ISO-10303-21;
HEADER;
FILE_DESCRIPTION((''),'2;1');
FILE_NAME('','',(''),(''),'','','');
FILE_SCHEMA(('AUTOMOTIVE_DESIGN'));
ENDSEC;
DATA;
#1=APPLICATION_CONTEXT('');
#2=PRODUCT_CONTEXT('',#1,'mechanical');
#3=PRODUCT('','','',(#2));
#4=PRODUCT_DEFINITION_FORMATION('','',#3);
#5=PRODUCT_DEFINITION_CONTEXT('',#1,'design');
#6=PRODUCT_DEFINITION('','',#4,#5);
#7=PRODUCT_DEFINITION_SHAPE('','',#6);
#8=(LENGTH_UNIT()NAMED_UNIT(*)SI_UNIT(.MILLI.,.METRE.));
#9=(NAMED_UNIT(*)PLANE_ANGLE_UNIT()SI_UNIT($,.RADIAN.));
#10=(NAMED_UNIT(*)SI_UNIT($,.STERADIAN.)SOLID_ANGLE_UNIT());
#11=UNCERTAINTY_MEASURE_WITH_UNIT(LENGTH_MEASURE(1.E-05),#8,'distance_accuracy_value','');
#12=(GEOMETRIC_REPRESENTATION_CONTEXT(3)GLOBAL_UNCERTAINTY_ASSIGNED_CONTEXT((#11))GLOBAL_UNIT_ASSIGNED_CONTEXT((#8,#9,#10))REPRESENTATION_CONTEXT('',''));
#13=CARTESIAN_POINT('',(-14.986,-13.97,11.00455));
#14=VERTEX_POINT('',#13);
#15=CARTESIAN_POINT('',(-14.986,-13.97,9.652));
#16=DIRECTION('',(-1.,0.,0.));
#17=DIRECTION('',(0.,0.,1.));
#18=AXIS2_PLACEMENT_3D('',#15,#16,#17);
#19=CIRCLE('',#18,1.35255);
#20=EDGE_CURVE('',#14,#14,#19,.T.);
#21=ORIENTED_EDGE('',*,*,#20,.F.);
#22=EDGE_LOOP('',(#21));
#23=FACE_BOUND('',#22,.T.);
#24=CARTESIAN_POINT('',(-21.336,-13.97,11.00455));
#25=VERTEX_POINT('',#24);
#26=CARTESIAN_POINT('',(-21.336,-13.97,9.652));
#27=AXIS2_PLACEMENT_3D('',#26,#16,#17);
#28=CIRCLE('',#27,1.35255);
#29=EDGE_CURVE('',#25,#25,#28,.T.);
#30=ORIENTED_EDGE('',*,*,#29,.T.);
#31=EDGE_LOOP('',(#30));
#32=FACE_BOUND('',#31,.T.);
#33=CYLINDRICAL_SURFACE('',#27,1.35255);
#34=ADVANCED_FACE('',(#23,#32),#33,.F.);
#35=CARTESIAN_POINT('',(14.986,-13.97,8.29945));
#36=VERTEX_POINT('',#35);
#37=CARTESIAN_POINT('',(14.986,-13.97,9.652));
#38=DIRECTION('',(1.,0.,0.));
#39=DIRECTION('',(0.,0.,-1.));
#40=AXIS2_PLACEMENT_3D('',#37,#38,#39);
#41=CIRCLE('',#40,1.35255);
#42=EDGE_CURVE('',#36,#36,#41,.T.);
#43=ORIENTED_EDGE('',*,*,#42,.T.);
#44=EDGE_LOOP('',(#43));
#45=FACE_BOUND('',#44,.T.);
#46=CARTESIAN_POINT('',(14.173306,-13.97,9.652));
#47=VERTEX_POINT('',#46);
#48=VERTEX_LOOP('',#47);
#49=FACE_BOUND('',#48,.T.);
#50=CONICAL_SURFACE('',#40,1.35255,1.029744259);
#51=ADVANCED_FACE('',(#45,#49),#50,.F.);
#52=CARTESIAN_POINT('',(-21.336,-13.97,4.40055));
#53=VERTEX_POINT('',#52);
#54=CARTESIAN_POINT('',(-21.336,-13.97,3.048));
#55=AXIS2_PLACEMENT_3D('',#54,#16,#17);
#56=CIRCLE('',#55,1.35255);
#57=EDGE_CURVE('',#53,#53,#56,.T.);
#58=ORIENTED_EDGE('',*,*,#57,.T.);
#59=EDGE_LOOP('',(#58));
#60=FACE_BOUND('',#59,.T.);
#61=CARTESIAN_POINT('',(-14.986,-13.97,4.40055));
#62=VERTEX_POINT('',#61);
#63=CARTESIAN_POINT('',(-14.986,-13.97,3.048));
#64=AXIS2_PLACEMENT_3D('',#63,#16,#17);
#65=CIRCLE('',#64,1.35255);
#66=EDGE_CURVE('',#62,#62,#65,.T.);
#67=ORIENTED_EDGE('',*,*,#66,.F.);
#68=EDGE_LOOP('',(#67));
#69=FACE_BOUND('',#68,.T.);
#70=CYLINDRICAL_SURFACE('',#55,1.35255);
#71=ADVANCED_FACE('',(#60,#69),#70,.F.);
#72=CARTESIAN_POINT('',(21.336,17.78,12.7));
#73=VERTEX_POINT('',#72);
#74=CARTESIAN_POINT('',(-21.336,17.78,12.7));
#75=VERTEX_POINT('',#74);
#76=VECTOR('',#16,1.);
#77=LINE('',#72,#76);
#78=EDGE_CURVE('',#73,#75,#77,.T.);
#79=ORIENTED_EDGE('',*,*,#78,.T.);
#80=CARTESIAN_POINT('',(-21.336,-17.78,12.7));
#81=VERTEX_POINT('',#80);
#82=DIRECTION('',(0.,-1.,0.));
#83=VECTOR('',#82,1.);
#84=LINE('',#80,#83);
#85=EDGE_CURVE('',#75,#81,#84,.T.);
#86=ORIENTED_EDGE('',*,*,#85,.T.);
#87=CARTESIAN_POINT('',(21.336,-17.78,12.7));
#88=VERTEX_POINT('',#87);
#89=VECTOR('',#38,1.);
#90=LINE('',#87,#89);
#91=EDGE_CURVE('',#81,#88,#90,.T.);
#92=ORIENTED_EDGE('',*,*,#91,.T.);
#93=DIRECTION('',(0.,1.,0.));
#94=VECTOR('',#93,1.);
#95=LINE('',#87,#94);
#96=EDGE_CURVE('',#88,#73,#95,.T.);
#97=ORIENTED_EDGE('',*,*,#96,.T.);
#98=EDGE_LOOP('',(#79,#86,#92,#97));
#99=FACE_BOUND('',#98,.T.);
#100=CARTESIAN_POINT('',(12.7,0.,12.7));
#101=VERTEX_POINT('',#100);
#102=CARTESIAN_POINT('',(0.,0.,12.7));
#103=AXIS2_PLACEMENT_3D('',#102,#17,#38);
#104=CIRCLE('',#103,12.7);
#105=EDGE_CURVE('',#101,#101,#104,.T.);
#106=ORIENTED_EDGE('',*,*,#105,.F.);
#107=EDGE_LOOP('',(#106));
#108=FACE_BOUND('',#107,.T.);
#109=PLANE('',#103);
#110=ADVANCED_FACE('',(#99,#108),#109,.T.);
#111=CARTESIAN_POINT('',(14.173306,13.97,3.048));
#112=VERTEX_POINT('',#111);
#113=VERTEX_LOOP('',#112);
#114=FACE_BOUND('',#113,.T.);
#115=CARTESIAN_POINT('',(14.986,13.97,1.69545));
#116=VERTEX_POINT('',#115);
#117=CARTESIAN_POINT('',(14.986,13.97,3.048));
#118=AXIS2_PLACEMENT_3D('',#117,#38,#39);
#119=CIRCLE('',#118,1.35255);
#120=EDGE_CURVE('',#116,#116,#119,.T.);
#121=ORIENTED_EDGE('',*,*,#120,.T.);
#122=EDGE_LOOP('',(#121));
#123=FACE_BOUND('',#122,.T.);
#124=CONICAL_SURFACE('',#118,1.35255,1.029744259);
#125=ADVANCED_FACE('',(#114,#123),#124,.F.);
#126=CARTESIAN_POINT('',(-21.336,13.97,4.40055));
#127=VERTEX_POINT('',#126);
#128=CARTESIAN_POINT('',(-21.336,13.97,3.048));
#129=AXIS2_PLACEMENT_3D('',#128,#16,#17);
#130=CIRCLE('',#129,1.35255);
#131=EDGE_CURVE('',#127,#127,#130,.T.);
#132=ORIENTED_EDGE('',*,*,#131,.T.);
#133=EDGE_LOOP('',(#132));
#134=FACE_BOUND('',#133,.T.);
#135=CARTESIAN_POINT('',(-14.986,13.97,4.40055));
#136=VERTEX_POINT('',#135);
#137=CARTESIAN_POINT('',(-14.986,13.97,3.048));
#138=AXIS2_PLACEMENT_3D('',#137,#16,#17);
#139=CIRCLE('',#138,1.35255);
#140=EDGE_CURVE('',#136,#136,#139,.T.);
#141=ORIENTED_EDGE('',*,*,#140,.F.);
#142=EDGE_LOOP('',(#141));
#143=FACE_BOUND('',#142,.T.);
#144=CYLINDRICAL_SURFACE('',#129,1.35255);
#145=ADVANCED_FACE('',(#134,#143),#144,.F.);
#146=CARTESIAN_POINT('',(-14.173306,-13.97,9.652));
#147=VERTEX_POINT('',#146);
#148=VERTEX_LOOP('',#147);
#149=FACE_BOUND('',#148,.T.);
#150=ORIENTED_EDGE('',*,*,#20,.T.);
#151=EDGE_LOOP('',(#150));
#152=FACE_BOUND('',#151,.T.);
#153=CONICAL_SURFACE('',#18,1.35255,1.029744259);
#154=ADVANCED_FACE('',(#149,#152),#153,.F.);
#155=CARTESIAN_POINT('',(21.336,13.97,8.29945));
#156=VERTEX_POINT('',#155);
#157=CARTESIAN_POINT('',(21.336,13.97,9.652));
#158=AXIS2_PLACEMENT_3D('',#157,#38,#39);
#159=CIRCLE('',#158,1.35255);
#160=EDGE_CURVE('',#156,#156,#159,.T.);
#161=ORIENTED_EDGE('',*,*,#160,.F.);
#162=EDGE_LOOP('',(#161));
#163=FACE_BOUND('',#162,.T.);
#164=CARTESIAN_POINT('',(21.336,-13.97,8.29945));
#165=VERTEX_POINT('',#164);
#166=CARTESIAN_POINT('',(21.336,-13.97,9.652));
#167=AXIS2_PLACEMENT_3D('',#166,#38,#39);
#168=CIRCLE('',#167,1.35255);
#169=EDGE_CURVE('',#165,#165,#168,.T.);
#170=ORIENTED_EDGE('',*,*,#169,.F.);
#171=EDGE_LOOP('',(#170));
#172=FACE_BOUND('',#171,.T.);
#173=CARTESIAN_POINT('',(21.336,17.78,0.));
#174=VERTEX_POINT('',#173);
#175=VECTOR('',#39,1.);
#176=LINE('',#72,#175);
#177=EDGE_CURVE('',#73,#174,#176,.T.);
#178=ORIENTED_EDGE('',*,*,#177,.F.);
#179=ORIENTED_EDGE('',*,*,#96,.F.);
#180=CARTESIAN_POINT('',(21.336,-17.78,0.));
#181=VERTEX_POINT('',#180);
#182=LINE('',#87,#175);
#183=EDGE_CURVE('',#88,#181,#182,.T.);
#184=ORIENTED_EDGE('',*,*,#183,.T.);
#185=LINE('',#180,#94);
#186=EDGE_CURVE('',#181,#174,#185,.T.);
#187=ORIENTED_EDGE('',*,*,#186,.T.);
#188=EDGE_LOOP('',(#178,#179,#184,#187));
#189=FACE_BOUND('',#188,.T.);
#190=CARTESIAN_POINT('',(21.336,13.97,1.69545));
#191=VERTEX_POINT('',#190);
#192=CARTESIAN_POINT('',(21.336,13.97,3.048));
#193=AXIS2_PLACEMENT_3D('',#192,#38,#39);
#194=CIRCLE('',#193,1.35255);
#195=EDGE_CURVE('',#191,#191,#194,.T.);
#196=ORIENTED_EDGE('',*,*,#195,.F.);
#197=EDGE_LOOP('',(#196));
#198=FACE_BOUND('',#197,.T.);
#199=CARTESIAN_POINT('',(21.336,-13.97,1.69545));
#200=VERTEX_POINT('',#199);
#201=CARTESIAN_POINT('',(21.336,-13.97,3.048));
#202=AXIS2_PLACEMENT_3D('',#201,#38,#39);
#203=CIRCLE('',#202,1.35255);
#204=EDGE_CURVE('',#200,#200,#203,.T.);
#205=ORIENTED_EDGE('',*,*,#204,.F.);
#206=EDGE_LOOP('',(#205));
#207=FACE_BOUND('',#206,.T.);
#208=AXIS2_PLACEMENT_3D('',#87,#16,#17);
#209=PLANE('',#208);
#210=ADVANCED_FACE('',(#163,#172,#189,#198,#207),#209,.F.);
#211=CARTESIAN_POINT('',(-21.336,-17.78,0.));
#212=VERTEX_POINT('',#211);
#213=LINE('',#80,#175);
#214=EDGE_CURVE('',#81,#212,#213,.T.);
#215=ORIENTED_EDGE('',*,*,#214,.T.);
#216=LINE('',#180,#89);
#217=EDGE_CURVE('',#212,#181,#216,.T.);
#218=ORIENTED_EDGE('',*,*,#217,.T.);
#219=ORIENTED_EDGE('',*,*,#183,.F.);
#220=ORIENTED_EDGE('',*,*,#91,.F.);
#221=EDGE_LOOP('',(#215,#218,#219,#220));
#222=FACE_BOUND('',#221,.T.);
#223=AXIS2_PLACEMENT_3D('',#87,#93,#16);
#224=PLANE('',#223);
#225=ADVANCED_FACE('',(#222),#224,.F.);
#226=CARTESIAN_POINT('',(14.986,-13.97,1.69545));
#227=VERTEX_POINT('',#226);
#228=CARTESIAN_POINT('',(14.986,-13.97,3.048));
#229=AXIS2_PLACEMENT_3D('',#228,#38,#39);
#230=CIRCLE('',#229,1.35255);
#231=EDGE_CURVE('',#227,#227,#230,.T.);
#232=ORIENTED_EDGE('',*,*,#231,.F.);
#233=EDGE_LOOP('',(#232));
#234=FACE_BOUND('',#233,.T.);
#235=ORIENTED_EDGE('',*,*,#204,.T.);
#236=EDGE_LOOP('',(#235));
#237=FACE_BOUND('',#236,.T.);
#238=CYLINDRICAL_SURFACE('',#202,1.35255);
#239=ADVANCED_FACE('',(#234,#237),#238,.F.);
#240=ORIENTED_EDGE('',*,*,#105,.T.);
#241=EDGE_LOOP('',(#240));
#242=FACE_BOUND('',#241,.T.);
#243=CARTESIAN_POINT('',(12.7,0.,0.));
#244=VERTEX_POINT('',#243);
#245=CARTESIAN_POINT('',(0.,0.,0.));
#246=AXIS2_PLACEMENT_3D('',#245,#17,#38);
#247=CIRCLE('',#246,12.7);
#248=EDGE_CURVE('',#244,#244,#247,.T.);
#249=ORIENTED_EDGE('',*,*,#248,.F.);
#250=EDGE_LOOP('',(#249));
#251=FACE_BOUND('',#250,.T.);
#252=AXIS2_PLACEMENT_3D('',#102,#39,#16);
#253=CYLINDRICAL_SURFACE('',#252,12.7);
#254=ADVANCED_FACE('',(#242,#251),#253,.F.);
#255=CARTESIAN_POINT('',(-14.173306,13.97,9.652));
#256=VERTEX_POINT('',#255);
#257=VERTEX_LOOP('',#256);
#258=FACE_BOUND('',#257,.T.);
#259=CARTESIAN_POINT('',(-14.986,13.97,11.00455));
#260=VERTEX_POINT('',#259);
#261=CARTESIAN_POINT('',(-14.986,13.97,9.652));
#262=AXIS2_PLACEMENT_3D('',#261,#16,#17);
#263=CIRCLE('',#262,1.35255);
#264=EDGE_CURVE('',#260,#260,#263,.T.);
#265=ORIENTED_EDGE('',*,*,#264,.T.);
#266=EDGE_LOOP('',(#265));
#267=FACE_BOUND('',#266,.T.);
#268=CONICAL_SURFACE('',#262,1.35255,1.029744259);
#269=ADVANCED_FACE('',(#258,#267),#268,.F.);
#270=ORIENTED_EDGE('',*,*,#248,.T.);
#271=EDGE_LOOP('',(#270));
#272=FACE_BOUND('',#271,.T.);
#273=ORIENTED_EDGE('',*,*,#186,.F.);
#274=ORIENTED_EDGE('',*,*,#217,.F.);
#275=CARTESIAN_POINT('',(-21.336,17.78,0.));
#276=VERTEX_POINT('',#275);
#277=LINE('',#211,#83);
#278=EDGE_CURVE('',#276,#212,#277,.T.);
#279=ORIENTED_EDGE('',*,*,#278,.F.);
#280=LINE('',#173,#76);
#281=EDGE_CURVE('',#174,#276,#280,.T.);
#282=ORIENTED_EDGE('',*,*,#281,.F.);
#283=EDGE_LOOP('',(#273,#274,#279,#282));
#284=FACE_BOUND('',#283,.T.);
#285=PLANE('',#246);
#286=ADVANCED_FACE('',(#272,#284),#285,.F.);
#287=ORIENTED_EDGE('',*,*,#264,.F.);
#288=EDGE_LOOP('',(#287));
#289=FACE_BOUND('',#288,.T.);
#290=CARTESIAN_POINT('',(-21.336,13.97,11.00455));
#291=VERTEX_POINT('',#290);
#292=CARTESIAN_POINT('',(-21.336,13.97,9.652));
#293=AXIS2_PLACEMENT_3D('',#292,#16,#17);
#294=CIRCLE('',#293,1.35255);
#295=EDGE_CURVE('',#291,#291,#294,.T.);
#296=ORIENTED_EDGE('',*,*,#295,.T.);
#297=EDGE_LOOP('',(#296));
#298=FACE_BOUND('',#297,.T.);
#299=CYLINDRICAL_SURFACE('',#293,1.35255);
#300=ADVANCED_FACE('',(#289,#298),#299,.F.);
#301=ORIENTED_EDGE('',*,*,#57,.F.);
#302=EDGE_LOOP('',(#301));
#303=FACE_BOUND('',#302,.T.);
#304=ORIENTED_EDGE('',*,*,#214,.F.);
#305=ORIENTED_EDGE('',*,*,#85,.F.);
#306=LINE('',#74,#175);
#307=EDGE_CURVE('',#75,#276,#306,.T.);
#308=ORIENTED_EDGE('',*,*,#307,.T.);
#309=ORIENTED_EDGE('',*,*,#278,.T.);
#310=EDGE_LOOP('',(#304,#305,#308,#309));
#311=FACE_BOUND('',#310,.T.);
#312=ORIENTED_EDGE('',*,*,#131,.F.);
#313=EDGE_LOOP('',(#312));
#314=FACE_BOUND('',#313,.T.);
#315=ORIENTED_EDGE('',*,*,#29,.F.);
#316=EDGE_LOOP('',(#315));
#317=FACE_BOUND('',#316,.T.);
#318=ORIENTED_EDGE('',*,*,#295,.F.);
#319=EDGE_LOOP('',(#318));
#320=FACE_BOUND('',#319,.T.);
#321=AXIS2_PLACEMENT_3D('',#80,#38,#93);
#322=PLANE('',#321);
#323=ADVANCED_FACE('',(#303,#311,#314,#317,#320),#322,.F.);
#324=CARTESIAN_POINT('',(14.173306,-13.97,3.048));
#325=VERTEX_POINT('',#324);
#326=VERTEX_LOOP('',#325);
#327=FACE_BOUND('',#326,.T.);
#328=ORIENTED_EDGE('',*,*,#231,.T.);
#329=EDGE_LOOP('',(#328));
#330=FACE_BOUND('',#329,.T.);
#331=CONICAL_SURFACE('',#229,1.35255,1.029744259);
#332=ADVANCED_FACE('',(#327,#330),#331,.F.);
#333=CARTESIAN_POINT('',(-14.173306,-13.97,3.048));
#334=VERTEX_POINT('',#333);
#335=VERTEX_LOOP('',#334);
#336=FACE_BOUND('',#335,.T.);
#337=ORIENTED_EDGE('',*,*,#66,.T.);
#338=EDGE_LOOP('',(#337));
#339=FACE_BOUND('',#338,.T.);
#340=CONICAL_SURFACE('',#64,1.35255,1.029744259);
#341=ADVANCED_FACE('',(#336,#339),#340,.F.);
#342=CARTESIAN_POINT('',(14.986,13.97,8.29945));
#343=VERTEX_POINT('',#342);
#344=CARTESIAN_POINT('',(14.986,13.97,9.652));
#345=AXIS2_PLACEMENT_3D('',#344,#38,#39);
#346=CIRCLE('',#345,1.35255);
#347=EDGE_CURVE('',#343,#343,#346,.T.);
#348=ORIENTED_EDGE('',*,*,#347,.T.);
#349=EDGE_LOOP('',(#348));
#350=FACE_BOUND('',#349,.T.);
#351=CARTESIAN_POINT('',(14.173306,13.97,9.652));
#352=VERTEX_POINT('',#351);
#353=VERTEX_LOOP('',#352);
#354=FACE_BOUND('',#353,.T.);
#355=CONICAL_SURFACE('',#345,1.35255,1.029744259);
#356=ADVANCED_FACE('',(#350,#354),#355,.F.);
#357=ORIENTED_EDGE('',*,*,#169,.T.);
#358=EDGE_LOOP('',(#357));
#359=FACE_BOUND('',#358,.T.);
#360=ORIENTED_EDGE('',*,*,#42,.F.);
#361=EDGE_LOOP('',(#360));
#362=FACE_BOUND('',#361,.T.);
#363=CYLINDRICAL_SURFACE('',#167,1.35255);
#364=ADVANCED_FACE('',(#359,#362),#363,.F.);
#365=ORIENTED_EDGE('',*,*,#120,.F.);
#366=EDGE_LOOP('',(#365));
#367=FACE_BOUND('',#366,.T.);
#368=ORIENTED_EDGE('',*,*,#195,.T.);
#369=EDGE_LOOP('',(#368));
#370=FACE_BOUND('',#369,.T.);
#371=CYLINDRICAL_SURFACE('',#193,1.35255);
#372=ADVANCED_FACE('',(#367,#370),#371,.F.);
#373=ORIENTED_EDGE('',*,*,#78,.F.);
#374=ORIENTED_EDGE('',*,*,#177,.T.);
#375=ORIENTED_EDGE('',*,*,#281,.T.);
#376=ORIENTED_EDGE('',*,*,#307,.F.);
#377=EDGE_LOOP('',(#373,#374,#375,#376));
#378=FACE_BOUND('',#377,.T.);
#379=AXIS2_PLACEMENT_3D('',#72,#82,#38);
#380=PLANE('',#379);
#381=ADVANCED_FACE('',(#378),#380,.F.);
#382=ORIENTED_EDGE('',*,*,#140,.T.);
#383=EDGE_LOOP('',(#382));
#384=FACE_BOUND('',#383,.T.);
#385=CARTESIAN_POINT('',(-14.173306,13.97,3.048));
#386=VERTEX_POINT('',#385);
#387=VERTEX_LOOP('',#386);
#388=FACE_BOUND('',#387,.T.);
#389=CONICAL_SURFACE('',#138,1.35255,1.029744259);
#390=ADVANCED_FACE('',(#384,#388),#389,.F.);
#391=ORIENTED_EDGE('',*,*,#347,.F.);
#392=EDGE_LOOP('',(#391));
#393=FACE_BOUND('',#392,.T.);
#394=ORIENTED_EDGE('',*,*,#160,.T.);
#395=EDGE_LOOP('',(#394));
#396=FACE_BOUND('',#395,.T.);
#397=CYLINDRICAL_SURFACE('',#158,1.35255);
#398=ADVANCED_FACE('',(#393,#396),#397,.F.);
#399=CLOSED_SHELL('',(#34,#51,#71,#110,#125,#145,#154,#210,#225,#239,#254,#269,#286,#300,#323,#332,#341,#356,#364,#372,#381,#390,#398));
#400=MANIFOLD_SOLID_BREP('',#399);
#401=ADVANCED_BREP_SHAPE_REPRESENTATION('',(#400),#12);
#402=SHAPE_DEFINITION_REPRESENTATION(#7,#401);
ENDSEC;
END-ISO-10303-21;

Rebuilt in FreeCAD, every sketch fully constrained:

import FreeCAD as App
import Part
import Sketcher
Q = App.Units.Quantity


def add_polygon(sketch, points):
    """Adds a closed chain of lines whose ends are joined by coincident constraints."""
    first, n = sketch.GeometryCount, len(points)
    for a, b in zip(points, points[1:] + points[:1]):
        sketch.addGeometry(Part.LineSegment(App.Vector(*a, 0), App.Vector(*b, 0)), False)
    for i in range(n):
        sketch.addConstraint(Sketcher.Constraint("Coincident", first + i, 2, first + (i + 1) % n, 1))

doc = App.newDocument("Part")
body = doc.addObject("PartDesign::Body", "Body")

# Sketch on XY plane
sketch1 = body.newObject("Sketcher::SketchObject", "Sketch")
sketch1.AttachmentSupport = (doc.getObject("XY_Plane"), [""])
sketch1.MapMode = "FlatFace"
add_polygon(sketch1, [(-21, 18), (-21, -18), (21, -18), (21, 18)])  # lines 0-3
sketch1.addGeometry(Part.Circle(App.Vector(0, 0, 0), App.Vector(0, 0, 1), 13), False)  # 4
sketch1.addConstraint([
    Sketcher.Constraint("Vertical", 0),
    Sketcher.Constraint("Horizontal", 1),
    Sketcher.Constraint("Vertical", 2),
    Sketcher.Constraint("Horizontal", 3),
    Sketcher.Constraint("Coincident", 4, 3, -1, 1),
    Sketcher.Constraint("Symmetric", 0, 2, 2, 2, -1, 1),
    Sketcher.Constraint("Diameter", 4, Q("1 in")),
    Sketcher.Constraint("DistanceY", 0, 2, 0, 1, Q("1.4 in")),
    Sketcher.Constraint("DistanceX", 1, 1, 1, 2, Q("1.68 in")),
])
pad1 = body.newObject("PartDesign::Pad", "Pad")
pad1.Profile = sketch1
pad1.Length = Q("0.5 in")

# Sketch on XZ plane
sketch2 = body.newObject("Sketcher::SketchObject", "Sketch001")
sketch2.AttachmentSupport = (doc.getObject("XZ_Plane"), [""])
sketch2.MapMode = "FlatFace"
sketch2.AttachmentOffset = App.Placement(App.Vector(0, 0, -0.55 * 25.4), App.Rotation())
add_polygon(sketch2, [(14.2, 3), (21.3, 3), (21.3, 1.7), (15, 1.7)])  # lines 0-3
sketch2.addGeometry(Part.LineSegment(App.Vector(21.3, 3, 0), App.Vector(14.2, 3, 0)), True)  # axis
sketch2.addConstraint([
    Sketcher.Constraint("Horizontal", 0),
    Sketcher.Constraint("Vertical", 1),
    Sketcher.Constraint("Horizontal", 2),
    Sketcher.Constraint("Horizontal", 4),
    Sketcher.Constraint("Coincident", 4, 1, 0, 2),
    Sketcher.Constraint("Equal", 0, 4),
    Sketcher.Constraint("Angle", 3, Q("121 deg")),
    Sketcher.Constraint("DistanceX", 2, 2, 2, 1, Q("0.25 in")),
    Sketcher.Constraint("DistanceX", -1, 1, 0, 2, Q("0.84 in")),
    Sketcher.Constraint("DistanceY", -1, 1, 0, 2, Q("0.12 in")),
    Sketcher.Constraint("DistanceY", 1, 2, 1, 1, 1.35255),
])
groove = body.newObject("PartDesign::Groove", "Groove")
groove.Profile = sketch2
groove.ReferenceAxis = (sketch2, ["Axis0"])
groove.Angle = 360
doc.recompute()

linearpattern = body.newObject("PartDesign::LinearPattern", "LinearPattern")
linearpattern.Originals = [groove]
linearpattern.Direction = (doc.getObject("Y_Axis"), [""])
linearpattern.Mode = "offset"
linearpattern.Offset = Q("1.1 in")
linearpattern.Occurrences = 2
linearpattern.Reversed = True
body.Tip = linearpattern
doc.recompute()

linearpattern2 = body.newObject("PartDesign::LinearPattern", "LinearPattern001")
linearpattern2.Originals = [groove]
linearpattern2.Direction = (doc.getObject("Z_Axis"), [""])
linearpattern2.Mode = "offset"
linearpattern2.Offset = Q("0.26 in")
linearpattern2.Occurrences = 2
body.Tip = linearpattern2
doc.recompute()

datumline = body.newObject("PartDesign::Line", "DatumLine")
datumline.Placement = App.Placement(App.Vector(0, 0, 0), App.Rotation(App.Vector(0, 0, 1), App.Vector(0, -0.973184613, 0.230025454)))
linearpattern3 = body.newObject("PartDesign::LinearPattern", "LinearPattern002")
linearpattern3.Originals = [groove]
linearpattern3.Direction = (datumline, [""])
linearpattern3.Mode = "offset"
linearpattern3.Offset = 28.709866
linearpattern3.Occurrences = 2
body.Tip = linearpattern3
doc.recompute()

mirrored = body.newObject("PartDesign::Mirrored", "Mirrored")
mirrored.Originals = [groove]
mirrored.MirrorPlane = (doc.getObject("YZ_Plane"), [""])
body.Tip = mirrored

# Sketch on XZ plane
sketch3 = body.newObject("Sketcher::SketchObject", "Sketch002")
sketch3.AttachmentSupport = (doc.getObject("XZ_Plane"), [""])
sketch3.MapMode = "FlatFace"
sketch3.AttachmentOffset = App.Placement(App.Vector(0, 0, 0.55 * 25.4), App.Rotation())
add_polygon(sketch3, [(-21.3, 3), (-14.2, 3), (-15, 1.7), (-21.3, 1.7)])  # lines 0-3
sketch3.addGeometry(Part.LineSegment(App.Vector(-14.2, 3, 0), App.Vector(-21.3, 3, 0)), True)  # axis
sketch3.addConstraint([
    Sketcher.Constraint("Horizontal", 0),
    Sketcher.Constraint("Horizontal", 2),
    Sketcher.Constraint("Vertical", 3),
    Sketcher.Constraint("Horizontal", 4),
    Sketcher.Constraint("Coincident", 4, 1, 0, 2),
    Sketcher.Constraint("Vertical", 2, 2, 4, 2),
    Sketcher.Constraint("Angle", 1, Q("-121 deg")),
    Sketcher.Constraint("DistanceX", 2, 2, 2, 1, Q("0.25 in")),
    Sketcher.Constraint("DistanceY", -1, 1, 0, 2, Q("0.12 in")),
    Sketcher.Constraint("DistanceX", 1, 2, -1, 1, Q("0.59 in")),
    Sketcher.Constraint("DistanceY", 3, 1, 3, 2, 1.35255),
])
groove2 = body.newObject("PartDesign::Groove", "Groove001")
groove2.Profile = sketch3
groove2.ReferenceAxis = (sketch3, ["Axis0"])
groove2.Angle = 360

# Sketch on XZ plane
sketch4 = body.newObject("Sketcher::SketchObject", "Sketch003")
sketch4.AttachmentSupport = (doc.getObject("XZ_Plane"), [""])
sketch4.MapMode = "FlatFace"
sketch4.AttachmentOffset = App.Placement(App.Vector(0, 0, -0.55 * 25.4), App.Rotation())
add_polygon(sketch4, [(-21.3, 9.7), (-14.2, 9.7), (-15, 8.3), (-21.3, 8.3)])  # lines 0-3
sketch4.addGeometry(Part.LineSegment(App.Vector(-14.2, 9.7, 0), App.Vector(-21.3, 9.7, 0)), True)  # axis
sketch4.addConstraint([
    Sketcher.Constraint("Horizontal", 0),
    Sketcher.Constraint("Horizontal", 2),
    Sketcher.Constraint("Vertical", 3),
    Sketcher.Constraint("Horizontal", 4),
    Sketcher.Constraint("Coincident", 4, 1, 0, 2),
    Sketcher.Constraint("Vertical", 2, 2, 4, 2),
    Sketcher.Constraint("Angle", 1, Q("-121 deg")),
    Sketcher.Constraint("DistanceX", 2, 2, 2, 1, Q("0.25 in")),
    Sketcher.Constraint("DistanceY", -1, 1, 0, 2, Q("0.38 in")),
    Sketcher.Constraint("DistanceX", 1, 2, -1, 1, Q("0.59 in")),
    Sketcher.Constraint("DistanceY", 3, 1, 3, 2, 1.35255),
])
groove3 = body.newObject("PartDesign::Groove", "Groove002")
groove3.Profile = sketch4
groove3.ReferenceAxis = (sketch4, ["Axis0"])
groove3.Angle = 360

# Sketch on XZ plane
sketch5 = body.newObject("Sketcher::SketchObject", "Sketch004")
sketch5.AttachmentSupport = (doc.getObject("XZ_Plane"), [""])
sketch5.MapMode = "FlatFace"
sketch5.AttachmentOffset = App.Placement(App.Vector(0, 0, 0.55 * 25.4), App.Rotation())
add_polygon(sketch5, [(-21.3, 9.7), (-14.2, 9.7), (-15, 8.3), (-21.3, 8.3)])  # lines 0-3
sketch5.addGeometry(Part.LineSegment(App.Vector(-14.2, 9.7, 0), App.Vector(-21.3, 9.7, 0)), True)  # axis
sketch5.addConstraint([
    Sketcher.Constraint("Horizontal", 0),
    Sketcher.Constraint("Horizontal", 2),
    Sketcher.Constraint("Vertical", 3),
    Sketcher.Constraint("Horizontal", 4),
    Sketcher.Constraint("Coincident", 4, 1, 0, 2),
    Sketcher.Constraint("Vertical", 2, 2, 4, 2),
    Sketcher.Constraint("Angle", 1, Q("-121 deg")),
    Sketcher.Constraint("DistanceX", 2, 2, 2, 1, Q("0.25 in")),
    Sketcher.Constraint("DistanceY", -1, 1, 0, 2, Q("0.38 in")),
    Sketcher.Constraint("DistanceX", 1, 2, -1, 1, Q("0.59 in")),
    Sketcher.Constraint("DistanceY", 3, 1, 3, 2, 1.35255),
])
groove4 = body.newObject("PartDesign::Groove", "Groove003")
groove4.Profile = sketch5
groove4.ReferenceAxis = (sketch5, ["Axis0"])
groove4.Angle = 360

doc.recompute()
